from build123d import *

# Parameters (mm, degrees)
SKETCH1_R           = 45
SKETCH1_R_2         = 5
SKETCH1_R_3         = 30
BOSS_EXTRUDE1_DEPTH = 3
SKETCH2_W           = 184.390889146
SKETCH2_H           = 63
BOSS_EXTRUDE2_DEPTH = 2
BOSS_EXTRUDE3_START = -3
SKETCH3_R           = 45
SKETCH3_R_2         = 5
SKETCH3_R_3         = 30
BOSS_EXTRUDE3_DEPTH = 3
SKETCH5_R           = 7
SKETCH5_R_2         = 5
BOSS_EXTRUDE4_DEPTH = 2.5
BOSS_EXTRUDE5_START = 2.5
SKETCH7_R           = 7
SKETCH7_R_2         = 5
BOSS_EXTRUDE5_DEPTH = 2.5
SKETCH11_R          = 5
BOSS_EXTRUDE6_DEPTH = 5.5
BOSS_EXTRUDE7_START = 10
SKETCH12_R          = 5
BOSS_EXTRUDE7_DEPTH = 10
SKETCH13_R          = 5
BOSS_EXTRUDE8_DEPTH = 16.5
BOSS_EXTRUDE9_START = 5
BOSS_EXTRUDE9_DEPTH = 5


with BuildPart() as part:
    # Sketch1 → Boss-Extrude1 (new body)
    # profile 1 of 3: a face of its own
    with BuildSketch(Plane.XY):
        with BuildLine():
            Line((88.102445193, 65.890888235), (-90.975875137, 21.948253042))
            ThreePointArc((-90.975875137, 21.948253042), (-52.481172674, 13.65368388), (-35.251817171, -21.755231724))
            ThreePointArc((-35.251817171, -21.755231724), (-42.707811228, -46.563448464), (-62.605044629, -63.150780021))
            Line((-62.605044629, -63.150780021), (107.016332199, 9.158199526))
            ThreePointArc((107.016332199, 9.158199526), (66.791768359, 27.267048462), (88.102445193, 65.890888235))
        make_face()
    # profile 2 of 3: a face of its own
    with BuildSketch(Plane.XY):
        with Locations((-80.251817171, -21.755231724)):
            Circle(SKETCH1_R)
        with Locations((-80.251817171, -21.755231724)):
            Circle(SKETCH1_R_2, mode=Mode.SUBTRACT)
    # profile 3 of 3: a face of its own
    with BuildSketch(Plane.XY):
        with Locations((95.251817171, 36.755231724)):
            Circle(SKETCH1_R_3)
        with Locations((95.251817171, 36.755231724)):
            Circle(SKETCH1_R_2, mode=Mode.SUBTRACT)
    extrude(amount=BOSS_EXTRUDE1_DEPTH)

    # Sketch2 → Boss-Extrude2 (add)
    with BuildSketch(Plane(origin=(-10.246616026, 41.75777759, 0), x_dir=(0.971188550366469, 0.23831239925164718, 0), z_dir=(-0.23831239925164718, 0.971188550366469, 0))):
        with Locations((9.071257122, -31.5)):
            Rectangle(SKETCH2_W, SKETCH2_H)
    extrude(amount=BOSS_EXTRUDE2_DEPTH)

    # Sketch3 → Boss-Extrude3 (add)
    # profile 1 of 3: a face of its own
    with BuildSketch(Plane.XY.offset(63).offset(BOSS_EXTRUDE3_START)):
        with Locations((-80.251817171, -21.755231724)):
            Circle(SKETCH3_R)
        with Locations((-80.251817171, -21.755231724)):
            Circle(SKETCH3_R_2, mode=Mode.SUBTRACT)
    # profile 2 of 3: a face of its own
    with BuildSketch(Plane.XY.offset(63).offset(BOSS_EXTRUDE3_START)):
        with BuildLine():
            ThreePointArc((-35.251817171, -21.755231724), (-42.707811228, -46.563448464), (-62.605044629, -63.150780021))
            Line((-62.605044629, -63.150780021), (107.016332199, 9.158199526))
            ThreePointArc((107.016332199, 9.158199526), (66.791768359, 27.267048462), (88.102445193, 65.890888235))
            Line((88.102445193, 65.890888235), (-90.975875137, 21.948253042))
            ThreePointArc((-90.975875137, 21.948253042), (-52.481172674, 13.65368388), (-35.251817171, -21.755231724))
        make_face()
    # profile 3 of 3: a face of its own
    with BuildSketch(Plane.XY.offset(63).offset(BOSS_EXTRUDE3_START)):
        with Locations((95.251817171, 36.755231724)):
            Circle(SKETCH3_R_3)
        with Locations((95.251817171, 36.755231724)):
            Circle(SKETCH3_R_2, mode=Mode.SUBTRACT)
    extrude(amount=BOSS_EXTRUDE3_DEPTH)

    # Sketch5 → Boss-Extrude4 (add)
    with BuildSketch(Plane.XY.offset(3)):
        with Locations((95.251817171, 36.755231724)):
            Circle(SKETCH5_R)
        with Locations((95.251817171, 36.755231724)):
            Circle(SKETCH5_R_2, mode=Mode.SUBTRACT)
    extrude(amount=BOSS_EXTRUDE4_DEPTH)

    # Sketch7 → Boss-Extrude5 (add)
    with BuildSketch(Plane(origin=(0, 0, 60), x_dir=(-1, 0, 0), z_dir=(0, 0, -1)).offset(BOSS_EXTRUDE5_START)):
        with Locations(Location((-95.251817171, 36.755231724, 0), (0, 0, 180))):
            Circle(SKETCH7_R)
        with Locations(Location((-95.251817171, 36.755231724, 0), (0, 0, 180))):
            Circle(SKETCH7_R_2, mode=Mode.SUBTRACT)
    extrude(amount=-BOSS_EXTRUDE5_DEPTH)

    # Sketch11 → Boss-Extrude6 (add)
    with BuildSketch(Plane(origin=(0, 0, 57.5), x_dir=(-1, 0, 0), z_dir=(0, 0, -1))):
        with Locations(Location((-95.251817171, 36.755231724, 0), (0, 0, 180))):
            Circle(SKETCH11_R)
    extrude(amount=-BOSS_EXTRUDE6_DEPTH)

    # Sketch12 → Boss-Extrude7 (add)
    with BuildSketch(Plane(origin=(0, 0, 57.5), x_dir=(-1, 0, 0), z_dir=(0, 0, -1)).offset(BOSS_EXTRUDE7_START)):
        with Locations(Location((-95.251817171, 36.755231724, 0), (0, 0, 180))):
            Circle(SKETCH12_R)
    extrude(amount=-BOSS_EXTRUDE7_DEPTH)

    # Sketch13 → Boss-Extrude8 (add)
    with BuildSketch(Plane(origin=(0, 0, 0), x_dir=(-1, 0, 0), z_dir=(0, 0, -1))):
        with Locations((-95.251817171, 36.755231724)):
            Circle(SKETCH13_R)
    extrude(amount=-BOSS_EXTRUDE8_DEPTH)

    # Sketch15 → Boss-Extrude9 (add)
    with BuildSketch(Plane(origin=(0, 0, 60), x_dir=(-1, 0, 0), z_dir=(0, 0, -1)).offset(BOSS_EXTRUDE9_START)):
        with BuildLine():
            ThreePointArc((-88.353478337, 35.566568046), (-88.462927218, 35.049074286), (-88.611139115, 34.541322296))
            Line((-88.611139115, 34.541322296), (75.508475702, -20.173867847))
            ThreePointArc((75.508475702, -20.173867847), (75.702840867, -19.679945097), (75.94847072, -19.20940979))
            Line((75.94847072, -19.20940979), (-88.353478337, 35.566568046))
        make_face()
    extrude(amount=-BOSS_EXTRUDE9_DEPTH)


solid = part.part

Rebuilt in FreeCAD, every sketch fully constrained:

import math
import FreeCAD as App
import Part
import Sketcher
Q = App.Units.Quantity


def add_polygon(sketch, points):
    """Adds a closed chain of lines whose ends are joined by coincident constraints."""
    first, n = sketch.GeometryCount, len(points)
    for a, b in zip(points, points[1:] + points[:1]):
        sketch.addGeometry(Part.LineSegment(App.Vector(*a, 0), App.Vector(*b, 0)), False)
    for i in range(n):
        sketch.addConstraint(Sketcher.Constraint("Coincident", first + i, 2, first + (i + 1) % n, 1))

doc = App.newDocument("Part")
body = doc.addObject("PartDesign::Body", "Body")

sketch1 = doc.addObject("Sketcher::SketchObject", "Sketch")
body.addObject(sketch1)
sketch1.AttachmentSupport = (doc.XY_Plane, [""])
sketch1.MapMode = "FlatFace"
sketch1.addGeometry([
    Part.LineSegment(App.Vector(88, 66, 0), App.Vector(-91, 22, 0)),
    Part.ArcOfCircle(Part.Circle(App.Vector(-80, -22, 0), App.Vector(0, 0, 1), 45), math.radians(104), math.radians(293)),
    Part.LineSegment(App.Vector(-63, -63, 0), App.Vector(107, 9, 0)),
    Part.ArcOfCircle(Part.Circle(App.Vector(95, 37, 0), App.Vector(0, 0, 1), 30), math.radians(-67), math.radians(104)),
    Part.Circle(App.Vector(-80, -22, 0), App.Vector(0, 0, 1), 5),
    Part.Circle(App.Vector(95, 37, 0), App.Vector(0, 0, 1), 5),
], False)
sketch1.addConstraint([
    Sketcher.Constraint("Tangent", 0, 2, 1, 1),
    Sketcher.Constraint("Tangent", 1, 2, 2, 1),
    Sketcher.Constraint("Tangent", 2, 2, 3, 1),
    Sketcher.Constraint("Tangent", 3, 2, 0, 1),
    Sketcher.Constraint("Coincident", 4, 3, 1, 3),
    Sketcher.Constraint("Coincident", 5, 3, 3, 3),
    Sketcher.Constraint("Equal", 4, 5),
    Sketcher.Constraint("Diameter", 4, Q("10 mm")),
    Sketcher.Constraint("Radius", 1, Q("45 mm")),
    Sketcher.Constraint("Radius", 3, Q("30 mm")),
    Sketcher.Constraint("DistanceY", -1, 1, 2, 2, Q("9.1582 mm")),
    Sketcher.Constraint("Distance", 0, Q("184.390889 mm")),
    Sketcher.Constraint("DistanceY", 1, 3, -1, 1, Q("21.755232 mm")),
    Sketcher.Constraint("DistanceX", 1, 3, -1, 1, Q("80.251817 mm")),
])
pad1 = doc.addObject("PartDesign::Pad", "Pad")
body.addObject(pad1)
pad1.Profile = sketch1
pad1.Length = 3

sketch2 = doc.addObject("Sketcher::SketchObject", "Sketch001")
body.addObject(sketch2)
sketch2.Placement = App.Placement(App.Vector(-10.246616, 41.757778, 0), App.Rotation(App.Vector(0.97118855, 0.238312399, 0), App.Vector(0, 0, -0.999999999), App.Vector(-0.238312399, 0.97118855, 0), "ZXY"))
add_polygon(sketch2, [(-83, 0), (-83, -63), (101, -63), (101, 0)])
sketch2.addConstraint([
    Sketcher.Constraint("Vertical", 0),
    Sketcher.Constraint("Horizontal", 1),
    Sketcher.Constraint("Vertical", 2),
    Sketcher.Constraint("Horizontal", 3),
    Sketcher.Constraint("PointOnObject", 2, 2, -1),
    Sketcher.Constraint("DistanceY", 0, 2, 0, 1, Q("63 mm")),
    Sketcher.Constraint("DistanceX", 1, 1, 1, 2, Q("184.390889 mm")),
    Sketcher.Constraint("DistanceX", -1, 1, 1, 2, Q("101.266702 mm")),
])
pad2 = doc.addObject("PartDesign::Pad", "Pad001")
body.addObject(pad2)
pad2.Profile = sketch2
pad2.Length = 2

sketch3 = doc.addObject("Sketcher::SketchObject", "Sketch002")
body.addObject(sketch3)
sketch3.AttachmentSupport = (doc.XY_Plane, [""])
sketch3.MapMode = "FlatFace"
sketch3.AttachmentOffset = App.Placement(App.Vector(0, 0, 60), App.Rotation())
sketch3.addGeometry([
    Part.ArcOfCircle(Part.Circle(App.Vector(-80, -22, 0), App.Vector(0, 0, 1), 45), math.radians(104), math.radians(293)),
    Part.LineSegment(App.Vector(-63, -63, 0), App.Vector(107, 9, 0)),
    Part.ArcOfCircle(Part.Circle(App.Vector(95, 37, 0), App.Vector(0, 0, 1), 30), math.radians(-67), math.radians(104)),
    Part.LineSegment(App.Vector(88, 66, 0), App.Vector(-91, 22, 0)),
    Part.Circle(App.Vector(-80, -22, 0), App.Vector(0, 0, 1), 5),
    Part.Circle(App.Vector(95, 37, 0), App.Vector(0, 0, 1), 5),
], False)
sketch3.addConstraint([
    Sketcher.Constraint("Tangent", 0, 2, 1, 1),
    Sketcher.Constraint("Tangent", 1, 2, 2, 1),
    Sketcher.Constraint("Tangent", 2, 2, 3, 1),
    Sketcher.Constraint("Tangent", 3, 2, 0, 1),
    Sketcher.Constraint("Coincident", 4, 3, 0, 3),
    Sketcher.Constraint("Coincident", 5, 3, 2, 3),
    Sketcher.Constraint("Equal", 4, 5),
    Sketcher.Constraint("Diameter", 4, Q("10 mm")),
    Sketcher.Constraint("Radius", 0, Q("45 mm")),
    Sketcher.Constraint("Radius", 2, Q("30 mm")),
    Sketcher.Constraint("DistanceY", -1, 1, 1, 2, Q("9.1582 mm")),
    Sketcher.Constraint("Distance", 1, Q("184.390889 mm")),
    Sketcher.Constraint("DistanceY", 0, 3, -1, 1, Q("21.755232 mm")),
    Sketcher.Constraint("DistanceX", 0, 3, -1, 1, Q("80.251817 mm")),
])
pad3 = doc.addObject("PartDesign::Pad", "Pad002")
body.addObject(pad3)
pad3.Profile = sketch3
pad3.Length = 3

sketch4 = doc.addObject("Sketcher::SketchObject", "Sketch003")
body.addObject(sketch4)
sketch4.AttachmentSupport = (doc.XY_Plane, [""])
sketch4.MapMode = "FlatFace"
sketch4.AttachmentOffset = App.Placement(App.Vector(0, 0, 3), App.Rotation())
sketch4.addGeometry([
    Part.Circle(App.Vector(95, 37, 0), App.Vector(0, 0, 1), 7),
    Part.Circle(App.Vector(95, 37, 0), App.Vector(0, 0, 1), 5),
], False)
sketch4.addConstraint([
    Sketcher.Constraint("Coincident", 1, 3, 0, 3),
    Sketcher.Constraint("Diameter", 0, Q("14 mm")),
    Sketcher.Constraint("Diameter", 1, Q("10 mm")),
    Sketcher.Constraint("DistanceY", -1, 1, 0, 3, Q("36.755232 mm")),
    Sketcher.Constraint("DistanceX", -1, 1, 0, 3, Q("95.251817 mm")),
])
pad4 = doc.addObject("PartDesign::Pad", "Pad003")
body.addObject(pad4)
pad4.Profile = sketch4
pad4.Length = 2.5

sketch5 = doc.addObject("Sketcher::SketchObject", "Sketch004")
body.addObject(sketch5)
sketch5.AttachmentSupport = (doc.XY_Plane, [""])
sketch5.MapMode = "FlatFace"
sketch5.AttachmentOffset = App.Placement(App.Vector(0, 0, 57.5), App.Rotation())
sketch5.addGeometry([
    Part.Circle(App.Vector(95, 37, 0), App.Vector(0, 0, 1), 7),
    Part.Circle(App.Vector(95, 37, 0), App.Vector(0, 0, 1), 5),
], False)
sketch5.addConstraint([
    Sketcher.Constraint("Coincident", 1, 3, 0, 3),
    Sketcher.Constraint("Diameter", 0, Q("14 mm")),
    Sketcher.Constraint("Diameter", 1, Q("10 mm")),
    Sketcher.Constraint("DistanceY", -1, 1, 0, 3, Q("36.755232 mm")),
    Sketcher.Constraint("DistanceX", -1, 1, 0, 3, Q("95.251817 mm")),
])
pad5 = doc.addObject("PartDesign::Pad", "Pad004")
body.addObject(pad5)
pad5.Profile = sketch5
pad5.Length = 2.5

sketch6 = doc.addObject("Sketcher::SketchObject", "Sketch005")
body.addObject(sketch6)
sketch6.AttachmentSupport = (doc.XY_Plane, [""])
sketch6.MapMode = "FlatFace"
sketch6.AttachmentOffset = App.Placement(App.Vector(0, 0, 57.5), App.Rotation())
sketch6.addGeometry(Part.Circle(App.Vector(95, 37, 0), App.Vector(0, 0, 1), 5), False)
sketch6.addConstraint([
    Sketcher.Constraint("Diameter", 0, Q("10 mm")),
    Sketcher.Constraint("DistanceY", -1, 1, 0, 3, Q("36.755232 mm")),
    Sketcher.Constraint("DistanceX", -1, 1, 0, 3, Q("95.251817 mm")),
])
pad6 = doc.addObject("PartDesign::Pad", "Pad005")
body.addObject(pad6)
pad6.Profile = sketch6
pad6.Length = 5.5

sketch7 = doc.addObject("Sketcher::SketchObject", "Sketch006")
body.addObject(sketch7)
sketch7.AttachmentSupport = (doc.XY_Plane, [""])
sketch7.MapMode = "FlatFace"
sketch7.AttachmentOffset = App.Placement(App.Vector(0, 0, 47.5), App.Rotation())
sketch7.addGeometry(Part.Circle(App.Vector(95, 37, 0), App.Vector(0, 0, 1), 5), False)
sketch7.addConstraint([
    Sketcher.Constraint("Diameter", 0, Q("10 mm")),
    Sketcher.Constraint("DistanceY", -1, 1, 0, 3, Q("36.755232 mm")),
    Sketcher.Constraint("DistanceX", -1, 1, 0, 3, Q("95.251817 mm")),
])
pad7 = doc.addObject("PartDesign::Pad", "Pad006")
body.addObject(pad7)
pad7.Profile = sketch7
pad7.Length = 10

sketch8 = doc.addObject("Sketcher::SketchObject", "Sketch007")
body.addObject(sketch8)
sketch8.AttachmentSupport = (doc.XY_Plane, [""])
sketch8.MapMode = "FlatFace"
sketch8.addGeometry(Part.Circle(App.Vector(95, 37, 0), App.Vector(0, 0, 1), 5), False)
sketch8.addConstraint([
    Sketcher.Constraint("Diameter", 0, Q("10 mm")),
    Sketcher.Constraint("DistanceY", -1, 1, 0, 3, Q("36.755232 mm")),
    Sketcher.Constraint("DistanceX", -1, 1, 0, 3, Q("95.251817 mm")),
])
pad8 = doc.addObject("PartDesign::Pad", "Pad007")
body.addObject(pad8)
pad8.Profile = sketch8
pad8.Length = 16.5

sketch9 = doc.addObject("Sketcher::SketchObject", "Sketch008")
body.addObject(sketch9)
sketch9.AttachmentSupport = (doc.XY_Plane, [""])
sketch9.MapMode = "FlatFace"
sketch9.AttachmentOffset = App.Placement(App.Vector(0, 0, 55), App.Rotation())
sketch9.addGeometry([
    Part.ArcOfCircle(Part.Circle(App.Vector(95.3, 36.8, 0), App.Vector(0, 0, 1), 7), math.radians(-170.22), math.radians(-161.56)),
    Part.LineSegment(App.Vector(88.6, 34.5, 0), App.Vector(-75.5, -20.2, 0)),
    Part.ArcOfCircle(Part.Circle(App.Vector(-80.3, -21.8, 0), App.Vector(0, 0, 1), 5), math.radians(18.44), math.radians(30.61)),
    Part.LineSegment(App.Vector(-75.9, -19.2, 0), App.Vector(88.4, 35.6, 0)),
], False)
sketch9.addConstraint([
    Sketcher.Constraint("Coincident", 0, 2, 1, 1),
    Sketcher.Constraint("Coincident", 1, 2, 2, 1),
    Sketcher.Constraint("Coincident", 2, 2, 3, 1),
    Sketcher.Constraint("Coincident", 3, 2, 0, 1),
    Sketcher.Constraint("Parallel", 1, 3),
    Sketcher.Constraint("Radius", 0, Q("7 mm")),
    Sketcher.Constraint("Radius", 2, Q("5 mm")),
    Sketcher.Constraint("Distance", 1, Q("173 mm")),
    Sketcher.Constraint("Distance", 3, Q("173.1922 mm")),
    Sketcher.Constraint("DistanceY", 1, 2, 0, 3, Q("56.9291 mm")),
    Sketcher.Constraint("DistanceY", 2, 3, 3, 2, Q("57.3218 mm")),
    Sketcher.Constraint("DistanceY", -1, 1, 0, 3, Q("36.755232 mm")),
    Sketcher.Constraint("DistanceY", 2, 3, -1, 1, Q("21.755232 mm")),
    Sketcher.Constraint("DistanceX", -1, 1, 0, 2, Q("88.611139 mm")),
])
pad9 = doc.addObject("PartDesign::Pad", "Pad008")
body.addObject(pad9)
pad9.Profile = sketch9
pad9.Length = 5

doc.recompute()
